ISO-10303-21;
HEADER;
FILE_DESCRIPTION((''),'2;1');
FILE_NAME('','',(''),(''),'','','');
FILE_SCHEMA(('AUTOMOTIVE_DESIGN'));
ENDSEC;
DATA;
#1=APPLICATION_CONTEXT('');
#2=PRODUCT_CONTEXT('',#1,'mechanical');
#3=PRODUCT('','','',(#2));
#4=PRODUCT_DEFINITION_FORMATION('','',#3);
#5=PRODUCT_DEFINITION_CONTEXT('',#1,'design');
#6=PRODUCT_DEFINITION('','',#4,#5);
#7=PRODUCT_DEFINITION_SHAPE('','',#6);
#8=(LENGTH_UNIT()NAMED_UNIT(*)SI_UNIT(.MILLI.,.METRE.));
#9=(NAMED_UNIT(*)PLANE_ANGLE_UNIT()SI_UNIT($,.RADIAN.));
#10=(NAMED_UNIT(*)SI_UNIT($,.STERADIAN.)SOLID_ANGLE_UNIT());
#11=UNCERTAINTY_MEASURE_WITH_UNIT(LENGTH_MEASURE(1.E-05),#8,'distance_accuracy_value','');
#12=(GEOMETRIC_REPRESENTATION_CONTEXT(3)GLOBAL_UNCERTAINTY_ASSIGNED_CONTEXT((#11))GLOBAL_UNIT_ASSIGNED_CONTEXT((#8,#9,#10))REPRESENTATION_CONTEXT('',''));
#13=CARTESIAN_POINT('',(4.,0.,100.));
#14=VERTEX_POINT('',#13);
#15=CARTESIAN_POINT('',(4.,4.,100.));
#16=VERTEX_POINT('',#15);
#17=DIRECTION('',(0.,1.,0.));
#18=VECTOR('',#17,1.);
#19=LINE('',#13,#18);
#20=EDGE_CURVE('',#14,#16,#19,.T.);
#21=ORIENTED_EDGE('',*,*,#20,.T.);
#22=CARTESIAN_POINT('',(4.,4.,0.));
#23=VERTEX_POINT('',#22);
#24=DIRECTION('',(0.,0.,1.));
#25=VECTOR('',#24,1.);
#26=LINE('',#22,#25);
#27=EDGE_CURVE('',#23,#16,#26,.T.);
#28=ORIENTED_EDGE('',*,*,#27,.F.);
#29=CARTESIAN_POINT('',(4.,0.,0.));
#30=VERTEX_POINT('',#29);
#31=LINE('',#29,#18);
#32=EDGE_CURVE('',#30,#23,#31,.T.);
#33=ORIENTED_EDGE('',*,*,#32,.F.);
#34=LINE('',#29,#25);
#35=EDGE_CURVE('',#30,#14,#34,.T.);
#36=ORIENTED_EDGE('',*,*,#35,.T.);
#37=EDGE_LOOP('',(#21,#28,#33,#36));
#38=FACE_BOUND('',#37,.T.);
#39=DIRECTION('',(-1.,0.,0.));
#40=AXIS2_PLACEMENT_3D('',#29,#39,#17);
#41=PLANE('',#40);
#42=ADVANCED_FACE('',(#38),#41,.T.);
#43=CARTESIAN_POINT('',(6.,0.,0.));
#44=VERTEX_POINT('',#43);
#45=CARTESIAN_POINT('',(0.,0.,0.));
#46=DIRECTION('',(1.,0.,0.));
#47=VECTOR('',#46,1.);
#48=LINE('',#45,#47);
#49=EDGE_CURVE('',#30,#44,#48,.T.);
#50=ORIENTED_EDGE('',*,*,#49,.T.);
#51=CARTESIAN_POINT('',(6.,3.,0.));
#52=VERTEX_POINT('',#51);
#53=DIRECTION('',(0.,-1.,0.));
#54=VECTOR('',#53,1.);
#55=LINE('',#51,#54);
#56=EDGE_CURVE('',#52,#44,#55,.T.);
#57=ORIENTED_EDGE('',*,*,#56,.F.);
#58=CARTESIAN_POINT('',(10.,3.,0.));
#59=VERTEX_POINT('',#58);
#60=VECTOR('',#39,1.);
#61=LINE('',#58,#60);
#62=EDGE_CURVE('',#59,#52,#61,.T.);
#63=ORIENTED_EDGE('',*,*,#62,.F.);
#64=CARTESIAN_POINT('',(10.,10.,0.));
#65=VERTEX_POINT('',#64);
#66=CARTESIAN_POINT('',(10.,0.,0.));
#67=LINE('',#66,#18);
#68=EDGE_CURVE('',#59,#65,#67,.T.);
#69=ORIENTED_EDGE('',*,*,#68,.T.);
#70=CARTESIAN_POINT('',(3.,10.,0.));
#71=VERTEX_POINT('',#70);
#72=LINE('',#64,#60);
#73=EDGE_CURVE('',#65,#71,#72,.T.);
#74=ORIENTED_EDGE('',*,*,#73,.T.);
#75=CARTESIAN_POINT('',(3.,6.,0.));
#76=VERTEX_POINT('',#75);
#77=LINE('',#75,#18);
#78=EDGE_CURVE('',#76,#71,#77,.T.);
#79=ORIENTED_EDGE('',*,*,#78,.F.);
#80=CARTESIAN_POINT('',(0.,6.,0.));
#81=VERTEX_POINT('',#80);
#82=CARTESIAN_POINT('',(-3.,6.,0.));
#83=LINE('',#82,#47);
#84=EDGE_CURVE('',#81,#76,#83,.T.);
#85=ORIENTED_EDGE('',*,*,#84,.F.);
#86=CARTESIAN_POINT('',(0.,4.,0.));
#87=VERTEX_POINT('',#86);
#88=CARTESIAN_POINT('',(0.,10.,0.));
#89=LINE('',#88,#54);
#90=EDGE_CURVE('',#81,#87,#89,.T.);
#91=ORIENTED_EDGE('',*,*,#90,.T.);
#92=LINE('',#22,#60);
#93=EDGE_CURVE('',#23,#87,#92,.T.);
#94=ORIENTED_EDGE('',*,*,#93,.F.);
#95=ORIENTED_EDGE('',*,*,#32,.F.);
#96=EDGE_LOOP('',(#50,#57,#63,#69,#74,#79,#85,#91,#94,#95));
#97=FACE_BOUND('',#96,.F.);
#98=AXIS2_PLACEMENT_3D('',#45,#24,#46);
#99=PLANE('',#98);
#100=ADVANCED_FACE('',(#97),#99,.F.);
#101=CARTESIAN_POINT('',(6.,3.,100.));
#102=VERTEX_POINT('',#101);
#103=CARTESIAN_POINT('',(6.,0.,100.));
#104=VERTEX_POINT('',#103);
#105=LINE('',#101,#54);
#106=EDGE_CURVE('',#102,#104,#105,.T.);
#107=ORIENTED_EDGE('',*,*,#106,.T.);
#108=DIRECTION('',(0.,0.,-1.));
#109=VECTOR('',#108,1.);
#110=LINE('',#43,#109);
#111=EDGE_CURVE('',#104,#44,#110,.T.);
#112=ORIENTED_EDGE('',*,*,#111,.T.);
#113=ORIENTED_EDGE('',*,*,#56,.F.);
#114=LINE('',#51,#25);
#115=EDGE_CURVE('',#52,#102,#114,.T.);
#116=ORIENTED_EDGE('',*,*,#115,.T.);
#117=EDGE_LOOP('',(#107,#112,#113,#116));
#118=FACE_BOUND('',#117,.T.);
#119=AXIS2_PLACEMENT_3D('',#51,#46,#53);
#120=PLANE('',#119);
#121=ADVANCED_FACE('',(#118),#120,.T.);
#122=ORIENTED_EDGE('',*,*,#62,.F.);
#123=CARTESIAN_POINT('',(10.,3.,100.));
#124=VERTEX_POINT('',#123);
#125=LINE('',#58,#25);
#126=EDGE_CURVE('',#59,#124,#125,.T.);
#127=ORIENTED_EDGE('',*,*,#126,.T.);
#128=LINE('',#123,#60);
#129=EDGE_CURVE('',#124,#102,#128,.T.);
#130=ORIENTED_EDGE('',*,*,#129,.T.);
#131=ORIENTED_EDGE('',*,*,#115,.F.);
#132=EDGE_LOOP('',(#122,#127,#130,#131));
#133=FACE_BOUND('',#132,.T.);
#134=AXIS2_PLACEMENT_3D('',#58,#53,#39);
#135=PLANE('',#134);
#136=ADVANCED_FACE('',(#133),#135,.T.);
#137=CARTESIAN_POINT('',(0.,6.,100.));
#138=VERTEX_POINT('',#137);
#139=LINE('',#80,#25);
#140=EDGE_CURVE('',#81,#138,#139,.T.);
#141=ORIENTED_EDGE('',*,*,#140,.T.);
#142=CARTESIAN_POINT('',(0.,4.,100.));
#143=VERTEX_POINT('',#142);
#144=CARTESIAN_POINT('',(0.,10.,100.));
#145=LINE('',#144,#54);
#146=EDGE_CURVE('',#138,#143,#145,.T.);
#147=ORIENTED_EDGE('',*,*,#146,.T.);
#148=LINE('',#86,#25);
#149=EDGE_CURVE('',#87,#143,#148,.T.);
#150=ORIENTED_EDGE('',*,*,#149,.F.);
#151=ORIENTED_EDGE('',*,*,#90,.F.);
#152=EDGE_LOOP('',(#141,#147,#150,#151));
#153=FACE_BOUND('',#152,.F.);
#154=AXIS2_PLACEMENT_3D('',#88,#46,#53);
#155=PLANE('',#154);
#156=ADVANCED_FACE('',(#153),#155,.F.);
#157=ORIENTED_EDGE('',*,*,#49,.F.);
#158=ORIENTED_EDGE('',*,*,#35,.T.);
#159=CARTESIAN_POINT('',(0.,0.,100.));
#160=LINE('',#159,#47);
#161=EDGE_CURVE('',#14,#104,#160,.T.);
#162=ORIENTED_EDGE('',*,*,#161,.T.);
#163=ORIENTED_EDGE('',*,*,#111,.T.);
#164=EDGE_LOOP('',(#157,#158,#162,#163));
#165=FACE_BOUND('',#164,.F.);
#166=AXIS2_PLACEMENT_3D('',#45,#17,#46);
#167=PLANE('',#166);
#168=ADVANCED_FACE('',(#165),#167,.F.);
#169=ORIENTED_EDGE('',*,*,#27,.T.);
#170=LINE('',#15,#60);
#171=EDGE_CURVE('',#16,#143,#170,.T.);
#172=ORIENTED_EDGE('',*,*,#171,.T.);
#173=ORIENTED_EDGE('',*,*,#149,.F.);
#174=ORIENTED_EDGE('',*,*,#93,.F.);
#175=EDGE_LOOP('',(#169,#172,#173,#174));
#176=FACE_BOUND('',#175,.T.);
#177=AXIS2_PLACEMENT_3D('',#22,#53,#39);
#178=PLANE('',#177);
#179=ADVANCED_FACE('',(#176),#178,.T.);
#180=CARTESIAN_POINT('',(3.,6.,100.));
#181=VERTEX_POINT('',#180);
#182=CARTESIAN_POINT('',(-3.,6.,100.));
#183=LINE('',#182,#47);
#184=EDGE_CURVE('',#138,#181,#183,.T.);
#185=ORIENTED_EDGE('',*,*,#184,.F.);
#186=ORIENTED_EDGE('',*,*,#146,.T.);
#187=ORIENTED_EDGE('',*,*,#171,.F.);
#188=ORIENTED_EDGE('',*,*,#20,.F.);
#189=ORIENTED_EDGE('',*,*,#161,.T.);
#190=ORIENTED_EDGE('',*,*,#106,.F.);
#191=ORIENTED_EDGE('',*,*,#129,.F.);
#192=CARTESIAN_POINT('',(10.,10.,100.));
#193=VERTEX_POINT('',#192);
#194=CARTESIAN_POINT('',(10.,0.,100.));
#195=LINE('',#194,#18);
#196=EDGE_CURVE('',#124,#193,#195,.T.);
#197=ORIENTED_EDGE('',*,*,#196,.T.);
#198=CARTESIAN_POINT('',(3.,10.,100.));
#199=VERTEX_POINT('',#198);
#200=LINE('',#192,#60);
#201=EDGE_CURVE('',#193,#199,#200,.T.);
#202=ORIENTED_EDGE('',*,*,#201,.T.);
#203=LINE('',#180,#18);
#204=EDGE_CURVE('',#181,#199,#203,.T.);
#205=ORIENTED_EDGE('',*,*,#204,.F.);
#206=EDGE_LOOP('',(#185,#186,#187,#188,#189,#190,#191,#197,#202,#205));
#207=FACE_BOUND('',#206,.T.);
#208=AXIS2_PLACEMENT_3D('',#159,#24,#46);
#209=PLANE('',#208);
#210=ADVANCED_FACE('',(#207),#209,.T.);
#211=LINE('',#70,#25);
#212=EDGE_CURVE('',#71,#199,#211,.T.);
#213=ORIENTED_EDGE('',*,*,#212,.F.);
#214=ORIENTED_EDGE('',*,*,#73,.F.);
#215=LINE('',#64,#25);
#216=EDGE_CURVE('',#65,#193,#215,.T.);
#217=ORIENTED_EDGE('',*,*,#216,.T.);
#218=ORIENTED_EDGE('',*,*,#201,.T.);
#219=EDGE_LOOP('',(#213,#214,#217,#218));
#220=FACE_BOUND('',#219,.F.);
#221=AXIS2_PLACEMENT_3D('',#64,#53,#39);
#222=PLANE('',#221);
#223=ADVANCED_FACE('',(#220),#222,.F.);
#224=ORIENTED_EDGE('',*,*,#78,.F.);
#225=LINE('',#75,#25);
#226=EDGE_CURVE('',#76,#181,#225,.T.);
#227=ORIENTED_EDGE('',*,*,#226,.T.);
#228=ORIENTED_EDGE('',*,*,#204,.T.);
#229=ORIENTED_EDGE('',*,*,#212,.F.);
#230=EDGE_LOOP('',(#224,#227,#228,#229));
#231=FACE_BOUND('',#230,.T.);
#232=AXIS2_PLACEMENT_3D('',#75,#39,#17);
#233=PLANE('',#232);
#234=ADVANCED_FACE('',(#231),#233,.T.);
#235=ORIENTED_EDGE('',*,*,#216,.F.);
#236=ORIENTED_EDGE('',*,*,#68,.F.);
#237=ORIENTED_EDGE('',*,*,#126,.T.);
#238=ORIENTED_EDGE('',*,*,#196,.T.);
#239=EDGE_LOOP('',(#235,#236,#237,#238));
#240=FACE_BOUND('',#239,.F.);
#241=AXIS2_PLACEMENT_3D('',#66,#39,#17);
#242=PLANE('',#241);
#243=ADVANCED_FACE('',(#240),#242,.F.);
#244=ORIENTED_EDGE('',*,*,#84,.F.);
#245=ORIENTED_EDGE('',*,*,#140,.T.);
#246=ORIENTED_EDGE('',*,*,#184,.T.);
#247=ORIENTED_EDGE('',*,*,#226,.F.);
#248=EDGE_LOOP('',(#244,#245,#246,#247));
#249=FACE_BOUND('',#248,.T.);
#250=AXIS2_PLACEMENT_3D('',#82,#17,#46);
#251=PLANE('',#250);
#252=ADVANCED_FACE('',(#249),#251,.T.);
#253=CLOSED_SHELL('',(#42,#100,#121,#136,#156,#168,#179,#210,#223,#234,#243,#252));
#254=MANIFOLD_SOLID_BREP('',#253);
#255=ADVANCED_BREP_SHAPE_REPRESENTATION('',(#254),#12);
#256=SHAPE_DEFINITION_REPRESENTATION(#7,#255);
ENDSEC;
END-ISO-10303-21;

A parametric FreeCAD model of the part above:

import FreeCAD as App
import Part
import Sketcher

V = App.Vector

doc = App.newDocument("Part")
params = doc.addObject("Spreadsheet::Sheet", "Params")
for row, (alias, value) in enumerate([
    ("sketch1_width", "10 mm"),
    ("pad1_length", "100 mm"),
    ("sketch2_width", "4 mm"),
    ("pocket1_length", "100 mm"),
    ("sketch3_width", "6 mm"),
    ("sketch3_height", "4 mm"),
    ("pocket2_length", "100 mm"),
    ("sketch4_width", "6 mm"),
    ("sketch4_height", "4 mm"),
    ("pocket3_length", "100 mm"),
    ("sketch5_width", "4 mm"),
    ("sketch5_height", "6 mm"),
    ("pocket4_length", "100 mm"),
    ("sketch6_width", "4 mm"),
    ("sketch6_height", "6 mm"),
    ("pocket5_length", "100 mm"),
    ("sketch7_diameter", "5 mm"),
    ("pocket6_length", "10 mm"),
    ("sketch8_diameter", "5 mm"),
    ("pocket7_length", "10 mm"),
], start=1):
    params.set(f"A{row}", alias)
    params.set(f"B{row}", "=" + value)
    params.setAlias(f"B{row}", alias)

body = doc.addObject("PartDesign::Body", "Body")

sketch1 = body.newObject("Sketcher::SketchObject", "Sketch")
sketch1.AttachmentSupport = (doc.getObject("XY_Plane"), [""])
sketch1.MapMode = "FlatFace"
sketch1.addGeometry(Part.LineSegment(V(0, 10, 0), V(0, 0, 0)), False)
sketch1.addGeometry(Part.LineSegment(V(0, 0, 0), V(10, 0, 0)), False)
sketch1.addGeometry(Part.LineSegment(V(10, 0, 0), V(10, 10, 0)), False)
sketch1.addGeometry(Part.LineSegment(V(10, 10, 0), V(0, 10, 0)), False)
sketch1.addConstraint(Sketcher.Constraint("Coincident", 0, 2, 1, 1))
sketch1.addConstraint(Sketcher.Constraint("Coincident", 1, 2, 2, 1))
sketch1.addConstraint(Sketcher.Constraint("Coincident", 2, 2, 3, 1))
sketch1.addConstraint(Sketcher.Constraint("Coincident", 3, 2, 0, 1))
sketch1.addConstraint(Sketcher.Constraint("Vertical", 0))
sketch1.addConstraint(Sketcher.Constraint("Horizontal", 1))
sketch1.addConstraint(Sketcher.Constraint("Vertical", 2))
sketch1.addConstraint(Sketcher.Constraint("Horizontal", 3))
sketch1.addConstraint(Sketcher.Constraint("Coincident", 0, 2, -1, 1))
sketch1.addConstraint(Sketcher.Constraint("Equal", 3, 0))
sketch1.addConstraint(Sketcher.Constraint("DistanceX", 1, 1, 1, 2, 10.0))
sketch1.setExpression("Constraints[10]", "Params.sketch1_width")
pad1 = body.newObject("PartDesign::Pad", "Pad")
pad1.Profile = sketch1
pad1.setExpression("Length", "Params.pad1_length")

sketch2 = body.newObject("Sketcher::SketchObject", "Sketch001")
sketch2.AttachmentSupport = (doc.getObject("XY_Plane"), [""])
sketch2.MapMode = "FlatFace"
sketch2.addGeometry(Part.LineSegment(V(0, 4, 0), V(0, 0, 0)), False)
sketch2.addGeometry(Part.LineSegment(V(0, 0, 0), V(4, 0, 0)), False)
sketch2.addGeometry(Part.LineSegment(V(4, 0, 0), V(4, 4, 0)), False)
sketch2.addGeometry(Part.LineSegment(V(4, 4, 0), V(0, 4, 0)), False)
sketch2.addConstraint(Sketcher.Constraint("Coincident", 0, 2, 1, 1))
sketch2.addConstraint(Sketcher.Constraint("Coincident", 1, 2, 2, 1))
sketch2.addConstraint(Sketcher.Constraint("Coincident", 2, 2, 3, 1))
sketch2.addConstraint(Sketcher.Constraint("Coincident", 3, 2, 0, 1))
sketch2.addConstraint(Sketcher.Constraint("Vertical", 0))
sketch2.addConstraint(Sketcher.Constraint("Horizontal", 1))
sketch2.addConstraint(Sketcher.Constraint("Vertical", 2))
sketch2.addConstraint(Sketcher.Constraint("Horizontal", 3))
sketch2.addConstraint(Sketcher.Constraint("Coincident", 0, 2, -1, 1))
sketch2.addConstraint(Sketcher.Constraint("Equal", 3, 0))
sketch2.addConstraint(Sketcher.Constraint("DistanceX", 1, 1, 1, 2, 4.0))
sketch2.setExpression("Constraints[10]", "Params.sketch2_width")
pocket1 = body.newObject("PartDesign::Pocket", "Pocket")
pocket1.Profile = sketch2
pocket1.setExpression("Length", "Params.pocket1_length")
pocket1.Reversed = True

sketch3 = body.newObject("Sketcher::SketchObject", "Sketch002")
sketch3.AttachmentSupport = (doc.getObject("XY_Plane"), [""])
sketch3.MapMode = "FlatFace"
sketch3.addGeometry(Part.LineSegment(V(-3, 10, 0), V(-3, 6, 0)), False)
sketch3.addGeometry(Part.LineSegment(V(-3, 6, 0), V(3, 6, 0)), False)
sketch3.addGeometry(Part.LineSegment(V(3, 6, 0), V(3, 10, 0)), False)
sketch3.addGeometry(Part.LineSegment(V(3, 10, 0), V(-3, 10, 0)), False)
sketch3.addConstraint(Sketcher.Constraint("Coincident", 0, 2, 1, 1))
sketch3.addConstraint(Sketcher.Constraint("Coincident", 1, 2, 2, 1))
sketch3.addConstraint(Sketcher.Constraint("Coincident", 2, 2, 3, 1))
sketch3.addConstraint(Sketcher.Constraint("Coincident", 3, 2, 0, 1))
sketch3.addConstraint(Sketcher.Constraint("Vertical", 0))
sketch3.addConstraint(Sketcher.Constraint("Horizontal", 1))
sketch3.addConstraint(Sketcher.Constraint("Vertical", 2))
sketch3.addConstraint(Sketcher.Constraint("Horizontal", 3))
sketch3.addConstraint(Sketcher.Constraint("DistanceX", 1, 1, 1, 2, 6.0))
sketch3.addConstraint(Sketcher.Constraint("DistanceY", 0, 2, 0, 1, 4.0))
sketch3.addConstraint(Sketcher.Constraint("DistanceX", 0, 2, -1, 1, 3.0))
sketch3.addConstraint(Sketcher.Constraint("DistanceY", -1, 1, 0, 2, 6.0))
sketch3.setExpression("Constraints[8]", "Params.sketch3_width")
sketch3.setExpression("Constraints[9]", "Params.sketch3_height")
pocket2 = body.newObject("PartDesign::Pocket", "Pocket001")
pocket2.Profile = sketch3
pocket2.setExpression("Length", "Params.pocket2_length")
pocket2.Reversed = True

sketch4 = body.newObject("Sketcher::SketchObject", "Sketch003")
sketch4.AttachmentSupport = (doc.getObject("XY_Plane"), [""])
sketch4.MapMode = "FlatFace"
sketch4.addGeometry(Part.LineSegment(V(-3, -6, 0), V(-3, -10, 0)), False)
sketch4.addGeometry(Part.LineSegment(V(-3, -10, 0), V(3, -10, 0)), False)
sketch4.addGeometry(Part.LineSegment(V(3, -10, 0), V(3, -6, 0)), False)
sketch4.addGeometry(Part.LineSegment(V(3, -6, 0), V(-3, -6, 0)), False)
sketch4.addConstraint(Sketcher.Constraint("Coincident", 0, 2, 1, 1))
sketch4.addConstraint(Sketcher.Constraint("Coincident", 1, 2, 2, 1))
sketch4.addConstraint(Sketcher.Constraint("Coincident", 2, 2, 3, 1))
sketch4.addConstraint(Sketcher.Constraint("Coincident", 3, 2, 0, 1))
sketch4.addConstraint(Sketcher.Constraint("Vertical", 0))
sketch4.addConstraint(Sketcher.Constraint("Horizontal", 1))
sketch4.addConstraint(Sketcher.Constraint("Vertical", 2))
sketch4.addConstraint(Sketcher.Constraint("Horizontal", 3))
sketch4.addConstraint(Sketcher.Constraint("DistanceX", 1, 1, 1, 2, 6.0))
sketch4.addConstraint(Sketcher.Constraint("DistanceY", 0, 2, 0, 1, 4.0))
sketch4.addConstraint(Sketcher.Constraint("DistanceX", 0, 2, -1, 1, 3.0))
sketch4.addConstraint(Sketcher.Constraint("DistanceY", 0, 2, -1, 1, 10.0))
sketch4.setExpression("Constraints[8]", "Params.sketch4_width")
sketch4.setExpression("Constraints[9]", "Params.sketch4_height")
pocket3 = body.newObject("PartDesign::Pocket", "Pocket002")
pocket3.Profile = sketch4
pocket3.setExpression("Length", "Params.pocket3_length")
pocket3.Reversed = True

sketch5 = body.newObject("Sketcher::SketchObject", "Sketch004")
sketch5.AttachmentSupport = (doc.getObject("XY_Plane"), [""])
sketch5.MapMode = "FlatFace"
sketch5.addGeometry(Part.LineSegment(V(-10, 3, 0), V(-10, -3, 0)), False)
sketch5.addGeometry(Part.LineSegment(V(-10, -3, 0), V(-6, -3, 0)), False)
sketch5.addGeometry(Part.LineSegment(V(-6, -3, 0), V(-6, 3, 0)), False)
sketch5.addGeometry(Part.LineSegment(V(-6, 3, 0), V(-10, 3, 0)), False)
sketch5.addConstraint(Sketcher.Constraint("Coincident", 0, 2, 1, 1))
sketch5.addConstraint(Sketcher.Constraint("Coincident", 1, 2, 2, 1))
sketch5.addConstraint(Sketcher.Constraint("Coincident", 2, 2, 3, 1))
sketch5.addConstraint(Sketcher.Constraint("Coincident", 3, 2, 0, 1))
sketch5.addConstraint(Sketcher.Constraint("Vertical", 0))
sketch5.addConstraint(Sketcher.Constraint("Horizontal", 1))
sketch5.addConstraint(Sketcher.Constraint("Vertical", 2))
sketch5.addConstraint(Sketcher.Constraint("Horizontal", 3))
sketch5.addConstraint(Sketcher.Constraint("DistanceX", 1, 1, 1, 2, 4.0))
sketch5.addConstraint(Sketcher.Constraint("DistanceY", 0, 2, 0, 1, 6.0))
sketch5.addConstraint(Sketcher.Constraint("DistanceX", 0, 2, -1, 1, 10.0))
sketch5.addConstraint(Sketcher.Constraint("DistanceY", 0, 2, -1, 1, 3.0))
sketch5.setExpression("Constraints[8]", "Params.sketch5_width")
sketch5.setExpression("Constraints[9]", "Params.sketch5_height")
pocket4 = body.newObject("PartDesign::Pocket", "Pocket003")
pocket4.Profile = sketch5
pocket4.setExpression("Length", "Params.pocket4_length")
pocket4.Reversed = True

sketch6 = body.newObject("Sketcher::SketchObject", "Sketch005")
sketch6.AttachmentSupport = (doc.getObject("XY_Plane"), [""])
sketch6.MapMode = "FlatFace"
sketch6.addGeometry(Part.LineSegment(V(6, 3, 0), V(6, -3, 0)), False)
sketch6.addGeometry(Part.LineSegment(V(6, -3, 0), V(10, -3, 0)), False)
sketch6.addGeometry(Part.LineSegment(V(10, -3, 0), V(10, 3, 0)), False)
sketch6.addGeometry(Part.LineSegment(V(10, 3, 0), V(6, 3, 0)), False)
sketch6.addConstraint(Sketcher.Constraint("Coincident", 0, 2, 1, 1))
sketch6.addConstraint(Sketcher.Constraint("Coincident", 1, 2, 2, 1))
sketch6.addConstraint(Sketcher.Constraint("Coincident", 2, 2, 3, 1))
sketch6.addConstraint(Sketcher.Constraint("Coincident", 3, 2, 0, 1))
sketch6.addConstraint(Sketcher.Constraint("Vertical", 0))
sketch6.addConstraint(Sketcher.Constraint("Horizontal", 1))
sketch6.addConstraint(Sketcher.Constraint("Vertical", 2))
sketch6.addConstraint(Sketcher.Constraint("Horizontal", 3))
sketch6.addConstraint(Sketcher.Constraint("DistanceX", 1, 1, 1, 2, 4.0))
sketch6.addConstraint(Sketcher.Constraint("DistanceY", 0, 2, 0, 1, 6.0))
sketch6.addConstraint(Sketcher.Constraint("DistanceX", -1, 1, 0, 2, 6.0))
sketch6.addConstraint(Sketcher.Constraint("DistanceY", 0, 2, -1, 1, 3.0))
sketch6.setExpression("Constraints[8]", "Params.sketch6_width")
sketch6.setExpression("Constraints[9]", "Params.sketch6_height")
pocket5 = body.newObject("PartDesign::Pocket", "Pocket004")
pocket5.Profile = sketch6
pocket5.setExpression("Length", "Params.pocket5_length")
pocket5.Reversed = True

sketch7 = body.newObject("Sketcher::SketchObject", "Sketch006")
sketch7.AttachmentSupport = (doc.getObject("XY_Plane"), [""])
sketch7.MapMode = "FlatFace"
sketch7.addGeometry(Part.Circle(V(0, 0, 0), V(0, 0, 1), 2.5), False)
sketch7.addConstraint(Sketcher.Constraint("Coincident", 0, 3, -1, 1))
sketch7.addConstraint(Sketcher.Constraint("Diameter", 0, 5.0))
sketch7.setExpression("Constraints[1]", "Params.sketch7_diameter")
pocket6 = body.newObject("PartDesign::Pocket", "Pocket005")
pocket6.Profile = sketch7
pocket6.setExpression("Length", "Params.pocket6_length")
pocket6.Reversed = True

sketch8 = body.newObject("Sketcher::SketchObject", "Sketch007")
sketch8.AttachmentSupport = (doc.getObject("XY_Plane"), [""])
sketch8.MapMode = "FlatFace"
sketch8.AttachmentOffset = App.Placement(V(0, 0, 100), App.Rotation())
sketch8.addGeometry(Part.Circle(V(0, 0, 0), V(0, 0, 1), 2.5), False)
sketch8.addConstraint(Sketcher.Constraint("Coincident", 0, 3, -1, 1))
sketch8.addConstraint(Sketcher.Constraint("Diameter", 0, 5.0))
sketch8.setExpression("Constraints[1]", "Params.sketch8_diameter")
pocket7 = body.newObject("PartDesign::Pocket", "Pocket006")
pocket7.Profile = sketch8
pocket7.setExpression("Length", "Params.pocket7_length")
pocket7.Reversed = True

doc.recompute()
